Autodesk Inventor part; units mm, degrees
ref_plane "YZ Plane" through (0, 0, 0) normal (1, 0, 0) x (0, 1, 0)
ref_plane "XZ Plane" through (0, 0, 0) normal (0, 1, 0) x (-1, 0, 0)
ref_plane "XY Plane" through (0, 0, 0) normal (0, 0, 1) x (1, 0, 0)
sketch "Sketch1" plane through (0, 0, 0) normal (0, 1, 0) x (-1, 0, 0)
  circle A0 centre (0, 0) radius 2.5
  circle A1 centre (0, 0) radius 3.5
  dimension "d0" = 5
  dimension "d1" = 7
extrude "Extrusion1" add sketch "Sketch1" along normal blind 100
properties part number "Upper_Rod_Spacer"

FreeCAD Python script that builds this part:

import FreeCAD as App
import Part
import Sketcher

doc = App.newDocument("Part")
body = doc.addObject("PartDesign::Body", "Body")

sketch1 = body.newObject("Sketcher::SketchObject", "Sketch")
sketch1.AttachmentSupport = (doc.getObject("XZ_Plane"), [""])
sketch1.MapMode = "FlatFace"
sketch1.addGeometry([
    Part.Circle(App.Vector(0, 0, 0), App.Vector(0, 0, 1), 3.5),
    Part.Circle(App.Vector(0, 0, 0), App.Vector(0, 0, 1), 2.5),
], False)
sketch1.addConstraint([
    Sketcher.Constraint("Coincident", 0, 3, -1, 1),
    Sketcher.Constraint("Coincident", 1, 3, -1, 1),
    Sketcher.Constraint("Diameter", 0, 7.0),
    Sketcher.Constraint("Diameter", 1, 5.0),
])
pad1 = body.newObject("PartDesign::Pad", "Pad")
pad1.Profile = sketch1
pad1.Length = 100
pad1.Reversed = True

doc.recompute()
